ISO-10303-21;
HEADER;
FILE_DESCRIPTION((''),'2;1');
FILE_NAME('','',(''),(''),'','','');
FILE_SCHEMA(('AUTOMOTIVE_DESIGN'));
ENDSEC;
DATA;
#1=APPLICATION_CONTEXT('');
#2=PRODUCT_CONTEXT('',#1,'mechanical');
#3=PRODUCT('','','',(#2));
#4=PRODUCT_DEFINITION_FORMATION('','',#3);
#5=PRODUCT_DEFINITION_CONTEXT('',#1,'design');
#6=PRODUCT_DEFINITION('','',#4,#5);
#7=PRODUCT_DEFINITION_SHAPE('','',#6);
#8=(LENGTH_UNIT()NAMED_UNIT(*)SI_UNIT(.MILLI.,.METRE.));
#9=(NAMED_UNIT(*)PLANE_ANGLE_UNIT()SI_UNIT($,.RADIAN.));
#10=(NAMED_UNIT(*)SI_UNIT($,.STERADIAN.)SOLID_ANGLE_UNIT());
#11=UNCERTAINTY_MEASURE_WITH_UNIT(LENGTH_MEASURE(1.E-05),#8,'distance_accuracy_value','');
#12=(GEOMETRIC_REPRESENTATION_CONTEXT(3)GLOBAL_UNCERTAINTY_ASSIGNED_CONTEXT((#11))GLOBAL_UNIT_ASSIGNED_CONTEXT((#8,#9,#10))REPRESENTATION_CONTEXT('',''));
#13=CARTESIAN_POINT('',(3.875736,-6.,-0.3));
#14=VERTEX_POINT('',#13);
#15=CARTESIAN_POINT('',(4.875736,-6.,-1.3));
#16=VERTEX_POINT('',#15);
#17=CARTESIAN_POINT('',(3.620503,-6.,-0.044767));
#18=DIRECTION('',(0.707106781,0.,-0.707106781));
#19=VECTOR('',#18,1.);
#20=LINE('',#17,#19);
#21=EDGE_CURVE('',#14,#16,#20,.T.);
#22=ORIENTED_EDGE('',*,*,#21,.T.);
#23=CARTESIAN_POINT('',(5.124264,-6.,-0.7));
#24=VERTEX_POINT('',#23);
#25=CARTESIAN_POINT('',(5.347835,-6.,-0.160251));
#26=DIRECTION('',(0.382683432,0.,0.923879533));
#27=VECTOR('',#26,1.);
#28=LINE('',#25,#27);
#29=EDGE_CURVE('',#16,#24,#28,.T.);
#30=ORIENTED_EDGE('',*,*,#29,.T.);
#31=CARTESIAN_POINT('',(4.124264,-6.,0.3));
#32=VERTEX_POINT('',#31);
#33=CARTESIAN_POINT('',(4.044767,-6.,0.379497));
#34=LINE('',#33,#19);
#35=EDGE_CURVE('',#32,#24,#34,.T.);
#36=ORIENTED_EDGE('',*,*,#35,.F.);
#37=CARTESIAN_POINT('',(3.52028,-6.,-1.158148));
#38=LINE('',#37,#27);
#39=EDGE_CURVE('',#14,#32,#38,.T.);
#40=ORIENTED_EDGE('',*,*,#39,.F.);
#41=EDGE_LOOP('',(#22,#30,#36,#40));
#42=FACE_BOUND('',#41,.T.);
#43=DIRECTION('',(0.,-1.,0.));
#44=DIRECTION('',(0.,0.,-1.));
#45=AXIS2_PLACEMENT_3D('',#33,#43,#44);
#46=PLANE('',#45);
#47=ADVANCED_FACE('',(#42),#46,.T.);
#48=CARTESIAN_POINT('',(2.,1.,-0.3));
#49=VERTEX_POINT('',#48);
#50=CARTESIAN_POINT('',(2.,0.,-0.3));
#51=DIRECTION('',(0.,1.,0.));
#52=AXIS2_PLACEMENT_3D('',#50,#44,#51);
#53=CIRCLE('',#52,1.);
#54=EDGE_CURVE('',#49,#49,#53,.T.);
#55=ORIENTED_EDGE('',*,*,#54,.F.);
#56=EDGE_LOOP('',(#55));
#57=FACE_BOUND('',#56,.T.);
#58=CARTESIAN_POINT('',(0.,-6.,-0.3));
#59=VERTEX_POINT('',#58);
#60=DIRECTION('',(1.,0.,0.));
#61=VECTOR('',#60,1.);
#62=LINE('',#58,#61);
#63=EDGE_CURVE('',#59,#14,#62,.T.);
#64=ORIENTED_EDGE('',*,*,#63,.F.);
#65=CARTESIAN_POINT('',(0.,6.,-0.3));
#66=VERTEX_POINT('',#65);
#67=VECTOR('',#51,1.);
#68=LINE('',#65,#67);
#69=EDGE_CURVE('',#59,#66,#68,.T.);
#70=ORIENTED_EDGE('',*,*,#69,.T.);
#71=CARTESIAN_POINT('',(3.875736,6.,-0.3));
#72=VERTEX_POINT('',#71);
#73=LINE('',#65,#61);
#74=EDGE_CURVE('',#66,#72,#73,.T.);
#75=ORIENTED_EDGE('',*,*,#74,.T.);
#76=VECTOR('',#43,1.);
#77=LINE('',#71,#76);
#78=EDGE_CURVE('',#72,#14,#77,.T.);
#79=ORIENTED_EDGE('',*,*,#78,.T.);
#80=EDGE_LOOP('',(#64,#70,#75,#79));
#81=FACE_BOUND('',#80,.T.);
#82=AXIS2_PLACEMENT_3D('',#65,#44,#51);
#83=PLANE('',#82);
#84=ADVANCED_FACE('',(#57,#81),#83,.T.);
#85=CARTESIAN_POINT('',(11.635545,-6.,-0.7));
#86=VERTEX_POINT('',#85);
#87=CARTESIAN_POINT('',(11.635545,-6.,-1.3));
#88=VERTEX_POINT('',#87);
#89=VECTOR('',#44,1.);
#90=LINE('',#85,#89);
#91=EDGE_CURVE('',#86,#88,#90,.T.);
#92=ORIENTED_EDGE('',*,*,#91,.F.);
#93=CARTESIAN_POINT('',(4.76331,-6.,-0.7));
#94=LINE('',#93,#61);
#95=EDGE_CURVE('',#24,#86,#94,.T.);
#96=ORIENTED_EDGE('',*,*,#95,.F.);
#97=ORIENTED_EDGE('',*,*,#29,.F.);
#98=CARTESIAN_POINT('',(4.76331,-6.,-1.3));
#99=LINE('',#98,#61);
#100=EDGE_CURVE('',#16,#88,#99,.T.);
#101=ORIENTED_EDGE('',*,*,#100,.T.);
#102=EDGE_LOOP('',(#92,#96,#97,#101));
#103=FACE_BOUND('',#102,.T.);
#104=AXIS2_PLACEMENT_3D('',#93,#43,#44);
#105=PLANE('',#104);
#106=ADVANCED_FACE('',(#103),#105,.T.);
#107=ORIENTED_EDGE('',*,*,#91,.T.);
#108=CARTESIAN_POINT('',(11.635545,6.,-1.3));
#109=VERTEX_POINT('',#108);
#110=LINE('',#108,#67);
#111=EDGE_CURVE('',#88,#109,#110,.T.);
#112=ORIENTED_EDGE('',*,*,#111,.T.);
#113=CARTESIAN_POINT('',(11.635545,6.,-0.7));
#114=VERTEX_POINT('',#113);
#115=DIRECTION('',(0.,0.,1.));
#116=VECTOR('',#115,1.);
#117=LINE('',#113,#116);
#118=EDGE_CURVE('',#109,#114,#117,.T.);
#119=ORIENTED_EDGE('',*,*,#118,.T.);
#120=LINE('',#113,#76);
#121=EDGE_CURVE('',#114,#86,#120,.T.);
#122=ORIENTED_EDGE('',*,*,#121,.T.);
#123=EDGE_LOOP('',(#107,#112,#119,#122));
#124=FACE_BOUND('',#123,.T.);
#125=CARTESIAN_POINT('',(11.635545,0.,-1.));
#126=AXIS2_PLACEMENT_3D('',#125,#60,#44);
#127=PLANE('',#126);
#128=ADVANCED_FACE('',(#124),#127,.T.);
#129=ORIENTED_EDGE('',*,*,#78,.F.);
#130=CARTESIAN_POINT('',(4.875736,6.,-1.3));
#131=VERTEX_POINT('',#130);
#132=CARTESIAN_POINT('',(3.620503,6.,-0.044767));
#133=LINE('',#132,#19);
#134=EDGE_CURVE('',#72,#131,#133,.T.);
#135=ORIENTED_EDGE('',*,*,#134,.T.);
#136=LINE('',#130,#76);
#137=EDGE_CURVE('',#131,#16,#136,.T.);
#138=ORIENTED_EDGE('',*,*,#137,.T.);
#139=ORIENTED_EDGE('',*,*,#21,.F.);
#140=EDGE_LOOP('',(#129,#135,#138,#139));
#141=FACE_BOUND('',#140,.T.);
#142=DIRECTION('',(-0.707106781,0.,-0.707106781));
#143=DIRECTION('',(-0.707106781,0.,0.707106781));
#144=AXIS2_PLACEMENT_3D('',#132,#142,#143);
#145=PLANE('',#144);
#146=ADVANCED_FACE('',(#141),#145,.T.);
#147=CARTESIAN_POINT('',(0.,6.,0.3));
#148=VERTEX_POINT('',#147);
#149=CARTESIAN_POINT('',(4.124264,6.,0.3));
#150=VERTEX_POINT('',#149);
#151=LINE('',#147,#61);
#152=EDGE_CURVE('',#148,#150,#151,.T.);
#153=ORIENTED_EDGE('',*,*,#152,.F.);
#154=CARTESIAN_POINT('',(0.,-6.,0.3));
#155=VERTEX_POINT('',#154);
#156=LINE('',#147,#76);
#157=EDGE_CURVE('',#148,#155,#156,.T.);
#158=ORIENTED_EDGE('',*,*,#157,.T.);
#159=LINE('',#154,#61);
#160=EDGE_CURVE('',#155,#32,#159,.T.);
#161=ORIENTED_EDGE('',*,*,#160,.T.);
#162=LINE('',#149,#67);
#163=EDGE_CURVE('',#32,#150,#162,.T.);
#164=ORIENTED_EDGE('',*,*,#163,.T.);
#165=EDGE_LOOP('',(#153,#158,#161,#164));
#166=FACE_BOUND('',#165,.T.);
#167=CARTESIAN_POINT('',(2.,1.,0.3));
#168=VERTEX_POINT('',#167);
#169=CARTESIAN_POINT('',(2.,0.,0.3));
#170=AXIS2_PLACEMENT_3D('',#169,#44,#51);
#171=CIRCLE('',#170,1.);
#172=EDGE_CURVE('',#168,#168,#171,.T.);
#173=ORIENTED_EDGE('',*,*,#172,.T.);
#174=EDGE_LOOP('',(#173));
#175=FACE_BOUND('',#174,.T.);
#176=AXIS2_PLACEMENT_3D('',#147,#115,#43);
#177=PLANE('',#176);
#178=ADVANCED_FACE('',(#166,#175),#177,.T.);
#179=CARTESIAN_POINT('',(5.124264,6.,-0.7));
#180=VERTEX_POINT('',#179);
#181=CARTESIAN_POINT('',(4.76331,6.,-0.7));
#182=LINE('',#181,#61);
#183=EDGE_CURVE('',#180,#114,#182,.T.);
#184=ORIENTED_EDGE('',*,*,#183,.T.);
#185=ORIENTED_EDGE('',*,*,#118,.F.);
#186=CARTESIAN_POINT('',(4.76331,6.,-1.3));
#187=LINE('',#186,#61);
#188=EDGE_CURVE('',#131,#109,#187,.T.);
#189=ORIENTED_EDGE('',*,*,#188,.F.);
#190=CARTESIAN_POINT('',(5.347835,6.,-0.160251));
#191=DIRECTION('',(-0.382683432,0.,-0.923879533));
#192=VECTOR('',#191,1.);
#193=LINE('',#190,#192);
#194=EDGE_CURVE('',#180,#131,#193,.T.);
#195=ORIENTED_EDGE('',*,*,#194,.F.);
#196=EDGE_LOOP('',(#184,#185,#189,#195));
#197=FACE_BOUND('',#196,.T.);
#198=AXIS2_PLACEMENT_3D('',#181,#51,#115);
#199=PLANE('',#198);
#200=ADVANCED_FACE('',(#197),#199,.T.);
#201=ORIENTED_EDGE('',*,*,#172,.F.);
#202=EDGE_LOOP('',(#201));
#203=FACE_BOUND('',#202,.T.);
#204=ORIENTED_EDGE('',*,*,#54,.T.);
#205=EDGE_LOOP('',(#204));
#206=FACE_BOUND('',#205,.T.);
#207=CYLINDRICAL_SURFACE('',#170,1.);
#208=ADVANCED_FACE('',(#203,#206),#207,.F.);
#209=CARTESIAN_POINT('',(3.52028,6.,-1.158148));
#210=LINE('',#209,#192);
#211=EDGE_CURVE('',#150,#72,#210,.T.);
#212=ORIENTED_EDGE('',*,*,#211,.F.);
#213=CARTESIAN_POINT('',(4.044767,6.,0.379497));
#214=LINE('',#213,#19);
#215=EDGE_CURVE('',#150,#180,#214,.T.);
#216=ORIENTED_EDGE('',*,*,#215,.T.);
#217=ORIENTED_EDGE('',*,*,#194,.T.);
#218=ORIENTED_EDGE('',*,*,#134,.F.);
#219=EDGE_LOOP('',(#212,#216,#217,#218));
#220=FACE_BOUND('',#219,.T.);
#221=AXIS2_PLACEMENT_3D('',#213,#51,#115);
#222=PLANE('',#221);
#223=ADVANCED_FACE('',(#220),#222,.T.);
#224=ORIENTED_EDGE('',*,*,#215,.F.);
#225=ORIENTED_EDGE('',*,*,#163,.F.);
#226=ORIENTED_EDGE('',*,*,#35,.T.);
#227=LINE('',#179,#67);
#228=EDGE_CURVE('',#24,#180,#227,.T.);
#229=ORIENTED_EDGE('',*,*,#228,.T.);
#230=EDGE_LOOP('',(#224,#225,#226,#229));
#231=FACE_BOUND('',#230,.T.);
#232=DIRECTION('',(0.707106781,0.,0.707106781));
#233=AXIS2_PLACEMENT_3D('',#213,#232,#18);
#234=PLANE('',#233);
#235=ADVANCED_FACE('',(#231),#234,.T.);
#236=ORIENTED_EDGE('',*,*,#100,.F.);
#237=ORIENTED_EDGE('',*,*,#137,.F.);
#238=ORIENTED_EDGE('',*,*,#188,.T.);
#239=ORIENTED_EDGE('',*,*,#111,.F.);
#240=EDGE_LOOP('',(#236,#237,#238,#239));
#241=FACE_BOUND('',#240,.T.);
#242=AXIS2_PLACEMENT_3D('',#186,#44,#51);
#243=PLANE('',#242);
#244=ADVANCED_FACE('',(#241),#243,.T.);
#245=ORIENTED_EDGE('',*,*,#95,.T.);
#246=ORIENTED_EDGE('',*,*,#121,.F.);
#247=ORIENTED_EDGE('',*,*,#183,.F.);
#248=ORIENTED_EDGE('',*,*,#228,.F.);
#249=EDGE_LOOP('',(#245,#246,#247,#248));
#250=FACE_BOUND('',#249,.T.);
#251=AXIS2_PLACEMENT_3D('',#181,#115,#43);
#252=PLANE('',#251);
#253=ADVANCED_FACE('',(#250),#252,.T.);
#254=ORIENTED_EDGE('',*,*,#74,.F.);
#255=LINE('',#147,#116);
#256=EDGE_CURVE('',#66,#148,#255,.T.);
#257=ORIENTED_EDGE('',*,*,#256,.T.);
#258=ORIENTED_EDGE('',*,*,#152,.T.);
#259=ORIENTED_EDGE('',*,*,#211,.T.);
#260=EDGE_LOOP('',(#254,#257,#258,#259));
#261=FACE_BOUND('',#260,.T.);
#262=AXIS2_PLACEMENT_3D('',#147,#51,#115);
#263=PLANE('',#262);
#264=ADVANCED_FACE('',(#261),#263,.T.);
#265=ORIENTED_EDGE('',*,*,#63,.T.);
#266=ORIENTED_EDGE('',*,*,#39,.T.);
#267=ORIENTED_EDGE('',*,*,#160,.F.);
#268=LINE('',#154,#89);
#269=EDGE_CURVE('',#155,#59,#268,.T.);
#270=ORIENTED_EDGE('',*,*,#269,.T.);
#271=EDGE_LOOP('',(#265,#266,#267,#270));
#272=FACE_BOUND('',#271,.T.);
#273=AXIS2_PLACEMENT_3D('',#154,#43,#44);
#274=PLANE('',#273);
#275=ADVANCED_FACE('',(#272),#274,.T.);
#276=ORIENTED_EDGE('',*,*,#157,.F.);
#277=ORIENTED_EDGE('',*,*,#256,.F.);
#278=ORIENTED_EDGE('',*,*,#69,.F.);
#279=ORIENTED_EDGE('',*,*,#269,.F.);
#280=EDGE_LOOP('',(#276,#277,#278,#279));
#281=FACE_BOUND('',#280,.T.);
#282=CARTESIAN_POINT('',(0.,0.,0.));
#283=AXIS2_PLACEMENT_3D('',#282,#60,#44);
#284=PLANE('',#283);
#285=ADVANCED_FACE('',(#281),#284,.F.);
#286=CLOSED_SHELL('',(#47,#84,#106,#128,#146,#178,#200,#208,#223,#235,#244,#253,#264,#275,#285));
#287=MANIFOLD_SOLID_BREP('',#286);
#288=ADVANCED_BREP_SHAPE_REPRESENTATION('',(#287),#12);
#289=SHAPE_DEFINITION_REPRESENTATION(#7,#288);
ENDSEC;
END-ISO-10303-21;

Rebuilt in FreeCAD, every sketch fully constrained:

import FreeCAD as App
import Part
import Sketcher
Q = App.Units.Quantity


def add_polygon(sketch, points):
    """Adds a closed chain of lines whose ends are joined by coincident constraints."""
    first, n = sketch.GeometryCount, len(points)
    for a, b in zip(points, points[1:] + points[:1]):
        sketch.addGeometry(Part.LineSegment(App.Vector(*a, 0), App.Vector(*b, 0)), False)
    for i in range(n):
        sketch.addConstraint(Sketcher.Constraint("Coincident", first + i, 2, first + (i + 1) % n, 1))

doc = App.newDocument("Part")
body = doc.addObject("PartDesign::Body", "Body")

sketch1 = body.newObject("Sketcher::SketchObject", "Sketch")
sketch1.AttachmentSupport = (doc.getObject("YZ_Plane"), [""])
sketch1.MapMode = "FlatFace"
add_polygon(sketch1, [(6, 0.3), (-6, 0.3), (-6, -0.3), (6, -0.3)])
sketch1.addConstraint(Sketcher.Constraint("Horizontal", 0))
sketch1.addConstraint(Sketcher.Constraint("Vertical", 1))
sketch1.addConstraint(Sketcher.Constraint("Horizontal", 2))
sketch1.addConstraint(Sketcher.Constraint("Vertical", 3))
sketch1.addConstraint(Sketcher.Constraint("Symmetric", 0, 2, 2, 2, -1, 1))
sketch1.addConstraint(Sketcher.Constraint("DistanceX", 0, 2, 0, 1, Q("12 mm")))
sketch1.addConstraint(Sketcher.Constraint("DistanceY", 1, 2, 1, 1, Q("0.6 mm")))

sketch2 = body.newObject("Sketcher::SketchObject", "Sketch001")
sketch2.AttachmentSupport = (doc.getObject("XZ_Plane"), [""])
sketch2.MapMode = "FlatFace"
sketch2.addGeometry(Part.LineSegment(App.Vector(0, 0, 0), App.Vector(4, 0, 0)), False)
sketch2.addGeometry(Part.LineSegment(App.Vector(4, 0, 0), App.Vector(5, -1, 0)), False)
sketch2.addGeometry(Part.LineSegment(App.Vector(5, -1, 0), App.Vector(11.635545, -1, 0)), False)
sketch2.addConstraint(Sketcher.Constraint("Coincident", 0, 2, 1, 1))
sketch2.addConstraint(Sketcher.Constraint("Coincident", 1, 2, 2, 1))
sketch2.addConstraint(Sketcher.Constraint("Horizontal", 0))
sketch2.addConstraint(Sketcher.Constraint("Horizontal", 2))
sketch2.addConstraint(Sketcher.Constraint("Coincident", 0, 1, -1, 1))
sketch2.addConstraint(Sketcher.Constraint("DistanceX", 0, 1, 0, 2, Q("4 mm")))
sketch2.addConstraint(Sketcher.Constraint("Angle", 1, Q("-45 deg")))
sketch2.addConstraint(Sketcher.Constraint("DistanceX", -1, 1, 1, 2, Q("5 mm")))
sketch2.addConstraint(Sketcher.Constraint("DistanceX", 2, 1, 2, 2, Q("6.635545 mm")))
doc.recompute()

additivepipe = body.newObject("PartDesign::AdditivePipe", "AdditivePipe")
additivepipe.Profile = sketch1
additivepipe.Spine = (sketch2, ["Edge1", "Edge2", "Edge3"])
additivepipe.Transition = "Right corner"

sketch3 = body.newObject("Sketcher::SketchObject", "Sketch002")
sketch3.AttachmentSupport = (doc.getObject("XY_Plane"), [""])
sketch3.MapMode = "FlatFace"
sketch3.AttachmentOffset = App.Placement(App.Vector(0, 0, -0.3), App.Rotation())
sketch3.addGeometry(Part.Circle(App.Vector(2, 0, 0), App.Vector(0, 0, 1), 1), False)
sketch3.addConstraint(Sketcher.Constraint("PointOnObject", 0, 3, -1))
sketch3.addConstraint(Sketcher.Constraint("Diameter", 0, Q("2 mm")))
sketch3.addConstraint(Sketcher.Constraint("DistanceX", -1, 1, 0, 3, Q("2 mm")))
pocket1 = body.newObject("PartDesign::Pocket", "Pocket")
pocket1.Profile = sketch3
pocket1.Length = 0.6
pocket1.Reversed = True

doc.recompute()
